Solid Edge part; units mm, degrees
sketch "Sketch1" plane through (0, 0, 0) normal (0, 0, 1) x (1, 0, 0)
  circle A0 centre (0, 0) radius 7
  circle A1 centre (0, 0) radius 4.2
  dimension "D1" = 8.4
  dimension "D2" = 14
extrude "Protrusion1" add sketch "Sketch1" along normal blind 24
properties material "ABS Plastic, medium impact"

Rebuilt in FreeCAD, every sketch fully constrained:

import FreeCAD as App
import Part
import Sketcher
from FreeCAD import Vector

doc = App.newDocument("Part")
body = doc.addObject("PartDesign::Body", "Body")

sketch1 = body.newObject("Sketcher::SketchObject", "Sketch")
sketch1.AttachmentSupport = (doc.getObject("XY_Plane"), [""])
sketch1.MapMode = "FlatFace"
sketch1.addGeometry([
    Part.Circle(Vector(0, 0, 0), Vector(0, 0, 1), 7),
    Part.Circle(Vector(0, 0, 0), Vector(0, 0, 1), 4.2),
], False)
sketch1.addConstraint([
    Sketcher.Constraint("Coincident", 0, 3, -1, 1),
    Sketcher.Constraint("Coincident", 1, 3, -1, 1),
    Sketcher.Constraint("Diameter", 0, 14.0),
    Sketcher.Constraint("Diameter", 1, 8.4),
])
pad1 = body.newObject("PartDesign::Pad", "Pad")
pad1.Profile = sketch1
pad1.Length = 24

doc.recompute()
